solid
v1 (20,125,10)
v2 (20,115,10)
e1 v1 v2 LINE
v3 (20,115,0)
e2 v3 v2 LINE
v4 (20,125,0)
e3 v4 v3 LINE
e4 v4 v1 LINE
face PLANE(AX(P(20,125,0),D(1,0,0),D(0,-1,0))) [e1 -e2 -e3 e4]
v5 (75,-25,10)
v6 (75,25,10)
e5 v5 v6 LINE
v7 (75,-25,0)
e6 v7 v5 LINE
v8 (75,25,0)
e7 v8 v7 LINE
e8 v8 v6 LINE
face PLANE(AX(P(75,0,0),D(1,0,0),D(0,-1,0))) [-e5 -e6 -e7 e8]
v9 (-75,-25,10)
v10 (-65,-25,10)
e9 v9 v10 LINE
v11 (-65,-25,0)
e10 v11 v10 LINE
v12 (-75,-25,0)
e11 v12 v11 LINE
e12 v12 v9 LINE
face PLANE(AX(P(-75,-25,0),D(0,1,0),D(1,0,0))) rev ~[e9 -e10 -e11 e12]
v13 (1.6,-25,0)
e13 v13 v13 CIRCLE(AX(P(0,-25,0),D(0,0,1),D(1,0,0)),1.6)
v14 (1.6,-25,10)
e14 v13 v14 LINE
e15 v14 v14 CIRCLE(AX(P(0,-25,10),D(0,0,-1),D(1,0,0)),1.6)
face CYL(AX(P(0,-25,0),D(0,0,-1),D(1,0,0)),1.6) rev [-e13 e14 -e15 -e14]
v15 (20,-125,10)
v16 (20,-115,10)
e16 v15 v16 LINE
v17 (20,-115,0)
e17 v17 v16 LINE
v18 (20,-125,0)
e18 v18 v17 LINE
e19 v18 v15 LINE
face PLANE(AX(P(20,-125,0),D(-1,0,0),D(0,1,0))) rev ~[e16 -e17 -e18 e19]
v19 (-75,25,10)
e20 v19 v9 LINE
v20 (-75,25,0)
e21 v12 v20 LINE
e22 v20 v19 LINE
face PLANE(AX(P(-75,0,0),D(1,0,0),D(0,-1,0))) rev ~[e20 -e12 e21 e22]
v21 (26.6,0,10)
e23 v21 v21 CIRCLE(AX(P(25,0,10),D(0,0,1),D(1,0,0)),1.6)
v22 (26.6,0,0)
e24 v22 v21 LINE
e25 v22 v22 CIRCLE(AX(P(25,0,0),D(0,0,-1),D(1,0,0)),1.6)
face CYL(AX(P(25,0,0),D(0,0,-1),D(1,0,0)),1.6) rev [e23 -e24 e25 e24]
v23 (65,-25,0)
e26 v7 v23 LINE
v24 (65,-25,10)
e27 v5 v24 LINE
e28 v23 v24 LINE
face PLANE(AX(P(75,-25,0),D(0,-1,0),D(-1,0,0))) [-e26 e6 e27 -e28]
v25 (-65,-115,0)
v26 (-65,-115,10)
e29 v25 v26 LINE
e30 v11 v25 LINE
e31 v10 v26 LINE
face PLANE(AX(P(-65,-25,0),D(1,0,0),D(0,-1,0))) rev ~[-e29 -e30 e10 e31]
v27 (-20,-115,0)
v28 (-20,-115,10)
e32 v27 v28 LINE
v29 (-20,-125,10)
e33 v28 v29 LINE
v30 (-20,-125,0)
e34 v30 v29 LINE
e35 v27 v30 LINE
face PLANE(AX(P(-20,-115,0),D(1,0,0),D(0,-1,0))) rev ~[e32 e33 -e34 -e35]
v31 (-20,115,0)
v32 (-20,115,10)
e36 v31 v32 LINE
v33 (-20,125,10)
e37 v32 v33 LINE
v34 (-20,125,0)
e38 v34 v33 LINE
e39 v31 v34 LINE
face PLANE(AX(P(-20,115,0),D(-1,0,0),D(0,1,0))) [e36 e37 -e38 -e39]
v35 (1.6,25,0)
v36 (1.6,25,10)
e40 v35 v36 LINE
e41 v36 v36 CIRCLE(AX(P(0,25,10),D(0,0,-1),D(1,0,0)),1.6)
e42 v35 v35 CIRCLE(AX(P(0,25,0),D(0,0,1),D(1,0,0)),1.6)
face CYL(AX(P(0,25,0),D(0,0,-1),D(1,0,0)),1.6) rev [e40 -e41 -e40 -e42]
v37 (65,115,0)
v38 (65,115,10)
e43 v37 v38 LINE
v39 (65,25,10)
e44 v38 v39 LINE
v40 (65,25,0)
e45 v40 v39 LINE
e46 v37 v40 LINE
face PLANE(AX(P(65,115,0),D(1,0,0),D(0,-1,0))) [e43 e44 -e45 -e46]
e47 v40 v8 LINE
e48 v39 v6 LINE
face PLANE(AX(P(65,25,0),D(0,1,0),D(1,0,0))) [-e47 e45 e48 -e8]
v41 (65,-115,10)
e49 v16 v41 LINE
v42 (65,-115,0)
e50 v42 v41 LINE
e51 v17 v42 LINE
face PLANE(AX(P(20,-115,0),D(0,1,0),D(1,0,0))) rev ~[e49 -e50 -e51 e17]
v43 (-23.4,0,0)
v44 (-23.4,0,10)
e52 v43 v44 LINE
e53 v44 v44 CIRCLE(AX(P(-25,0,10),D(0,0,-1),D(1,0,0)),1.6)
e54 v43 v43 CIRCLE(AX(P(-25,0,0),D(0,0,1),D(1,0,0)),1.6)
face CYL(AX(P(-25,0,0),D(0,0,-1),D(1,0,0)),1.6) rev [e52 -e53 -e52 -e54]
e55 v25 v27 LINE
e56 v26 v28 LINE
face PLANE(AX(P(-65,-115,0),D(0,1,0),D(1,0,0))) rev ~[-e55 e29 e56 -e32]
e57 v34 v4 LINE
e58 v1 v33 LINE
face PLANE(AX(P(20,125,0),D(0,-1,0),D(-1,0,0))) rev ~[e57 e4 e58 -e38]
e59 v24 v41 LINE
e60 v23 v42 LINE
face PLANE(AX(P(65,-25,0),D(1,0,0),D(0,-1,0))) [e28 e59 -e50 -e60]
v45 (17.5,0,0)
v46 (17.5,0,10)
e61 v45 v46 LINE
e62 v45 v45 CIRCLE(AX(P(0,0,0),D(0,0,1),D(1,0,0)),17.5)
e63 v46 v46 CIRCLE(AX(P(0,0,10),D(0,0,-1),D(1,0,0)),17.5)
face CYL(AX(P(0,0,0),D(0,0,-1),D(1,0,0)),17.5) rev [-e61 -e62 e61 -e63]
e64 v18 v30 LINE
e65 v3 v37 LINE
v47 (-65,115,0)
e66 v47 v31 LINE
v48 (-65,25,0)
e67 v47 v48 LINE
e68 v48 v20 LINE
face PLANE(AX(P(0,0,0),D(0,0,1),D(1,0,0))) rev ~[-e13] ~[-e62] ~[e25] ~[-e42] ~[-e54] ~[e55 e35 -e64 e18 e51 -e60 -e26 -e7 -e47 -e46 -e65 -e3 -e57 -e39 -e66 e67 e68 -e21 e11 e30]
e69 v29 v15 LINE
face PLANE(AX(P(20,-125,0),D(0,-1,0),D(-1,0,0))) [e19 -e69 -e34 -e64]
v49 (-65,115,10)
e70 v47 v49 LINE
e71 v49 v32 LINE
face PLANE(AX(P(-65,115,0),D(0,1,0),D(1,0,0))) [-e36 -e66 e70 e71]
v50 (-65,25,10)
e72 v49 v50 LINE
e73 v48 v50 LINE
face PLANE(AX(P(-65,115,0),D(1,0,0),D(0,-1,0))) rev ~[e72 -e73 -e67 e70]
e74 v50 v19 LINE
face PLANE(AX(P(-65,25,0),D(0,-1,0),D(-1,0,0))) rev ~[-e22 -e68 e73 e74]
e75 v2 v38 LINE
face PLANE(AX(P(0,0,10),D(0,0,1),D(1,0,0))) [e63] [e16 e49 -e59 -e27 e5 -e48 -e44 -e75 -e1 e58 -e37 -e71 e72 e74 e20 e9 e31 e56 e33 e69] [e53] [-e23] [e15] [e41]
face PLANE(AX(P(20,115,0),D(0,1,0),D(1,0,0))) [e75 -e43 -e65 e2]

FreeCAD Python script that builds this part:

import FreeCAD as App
import Part
import Sketcher
Q = App.Units.Quantity

doc = App.newDocument("Part")
body = doc.addObject("PartDesign::Body", "Body")

# Sketch on XY plane
sketch1 = body.newObject("Sketcher::SketchObject", "Sketch")
sketch1.AttachmentSupport = (doc.getObject("XY_Plane"), [""])
sketch1.MapMode = "FlatFace"
sketch1.addGeometry([
    Part.LineSegment(App.Vector(75, -25, 0), App.Vector(75, 25, 0)),  # 0
    Part.LineSegment(App.Vector(75, 25, 0), App.Vector(65, 25, 0)),  # 1
    Part.LineSegment(App.Vector(65, 25, 0), App.Vector(65, 115, 0)),  # 2
    Part.LineSegment(App.Vector(65, 115, 0), App.Vector(20, 115, 0)),  # 3
    Part.LineSegment(App.Vector(20, 115, 0), App.Vector(20, 125, 0)),  # 4
    Part.LineSegment(App.Vector(20, 125, 0), App.Vector(-20, 125, 0)),  # 5
    Part.LineSegment(App.Vector(-20, 125, 0), App.Vector(-20, 115, 0)),  # 6
    Part.LineSegment(App.Vector(-20, 115, 0), App.Vector(-65, 115, 0)),  # 7
    Part.LineSegment(App.Vector(-65, 115, 0), App.Vector(-65, 25, 0)),  # 8
    Part.LineSegment(App.Vector(-65, 25, 0), App.Vector(-75, 25, 0)),  # 9
    Part.LineSegment(App.Vector(-75, 25, 0), App.Vector(-75, -25, 0)),  # 10
    Part.LineSegment(App.Vector(-75, -25, 0), App.Vector(-65, -25, 0)),  # 11
    Part.LineSegment(App.Vector(-65, -25, 0), App.Vector(-65, -115, 0)),  # 12
    Part.LineSegment(App.Vector(-65, -115, 0), App.Vector(-20, -115, 0)),  # 13
    Part.LineSegment(App.Vector(-20, -115, 0), App.Vector(-20, -125, 0)),  # 14
    Part.LineSegment(App.Vector(-20, -125, 0), App.Vector(20, -125, 0)),  # 15
    Part.LineSegment(App.Vector(20, -125, 0), App.Vector(20, -115, 0)),  # 16
    Part.LineSegment(App.Vector(20, -115, 0), App.Vector(65, -115, 0)),  # 17
    Part.LineSegment(App.Vector(65, -115, 0), App.Vector(65, -25, 0)),  # 18
    Part.LineSegment(App.Vector(65, -25, 0), App.Vector(75, -25, 0)),  # 19
    Part.Circle(App.Vector(25, 0, 0), App.Vector(0, 0, 1), 1.6),  # 20
    Part.Circle(App.Vector(0, -25, 0), App.Vector(0, 0, 1), 1.6),  # 21
    Part.Circle(App.Vector(0, 0, 0), App.Vector(0, 0, 1), 17.5),  # 22
    Part.Circle(App.Vector(0, 25, 0), App.Vector(0, 0, 1), 1.6),  # 23
    Part.Circle(App.Vector(-25, 0, 0), App.Vector(0, 0, 1), 1.6),  # 24
], False)
sketch1.addConstraint([
    Sketcher.Constraint("Coincident", 0, 2, 1, 1),
    Sketcher.Constraint("Coincident", 1, 2, 2, 1),
    Sketcher.Constraint("Coincident", 2, 2, 3, 1),
    Sketcher.Constraint("Coincident", 3, 2, 4, 1),
    Sketcher.Constraint("Coincident", 4, 2, 5, 1),
    Sketcher.Constraint("Coincident", 5, 2, 6, 1),
    Sketcher.Constraint("Coincident", 6, 2, 7, 1),
    Sketcher.Constraint("Coincident", 7, 2, 8, 1),
    Sketcher.Constraint("Coincident", 8, 2, 9, 1),
    Sketcher.Constraint("Coincident", 9, 2, 10, 1),
    Sketcher.Constraint("Coincident", 10, 2, 11, 1),
    Sketcher.Constraint("Coincident", 11, 2, 12, 1),
    Sketcher.Constraint("Coincident", 12, 2, 13, 1),
    Sketcher.Constraint("Coincident", 13, 2, 14, 1),
    Sketcher.Constraint("Coincident", 14, 2, 15, 1),
    Sketcher.Constraint("Coincident", 15, 2, 16, 1),
    Sketcher.Constraint("Coincident", 16, 2, 17, 1),
    Sketcher.Constraint("Coincident", 17, 2, 18, 1),
    Sketcher.Constraint("Coincident", 18, 2, 19, 1),
    Sketcher.Constraint("Coincident", 19, 2, 0, 1),
    Sketcher.Constraint("Vertical", 0),
    Sketcher.Constraint("Horizontal", 1),
    Sketcher.Constraint("Vertical", 2),
    Sketcher.Constraint("Horizontal", 3),
    Sketcher.Constraint("Vertical", 4),
    Sketcher.Constraint("Horizontal", 5),
    Sketcher.Constraint("Vertical", 6),
    Sketcher.Constraint("Horizontal", 7),
    Sketcher.Constraint("Vertical", 8),
    Sketcher.Constraint("Horizontal", 9),
    Sketcher.Constraint("Vertical", 10),
    Sketcher.Constraint("Horizontal", 11),
    Sketcher.Constraint("Vertical", 12),
    Sketcher.Constraint("Horizontal", 13),
    Sketcher.Constraint("Vertical", 14),
    Sketcher.Constraint("Horizontal", 15),
    Sketcher.Constraint("Vertical", 16),
    Sketcher.Constraint("Horizontal", 17),
    Sketcher.Constraint("Vertical", 18),
    Sketcher.Constraint("Horizontal", 19),
    Sketcher.Constraint("Coincident", 22, 3, -1, 1),
    Sketcher.Constraint("Equal", 20, 21),
    Sketcher.Constraint("Equal", 21, 23),
    Sketcher.Constraint("Equal", 23, 24),
    Sketcher.Constraint("Symmetric", 21, 3, 23, 3, -1, 1),
    Sketcher.Constraint("Symmetric", 20, 3, 24, 3, -1, 1),
    Sketcher.Constraint("Symmetric", 0, 2, 10, 2, -1, 1),
    Sketcher.Constraint("Symmetric", 2, 2, 12, 2, -1, 1),
    Sketcher.Constraint("Symmetric", 4, 2, 14, 2, -1, 1),
    Sketcher.Constraint("Symmetric", 6, 2, 16, 2, -1, 1),
    Sketcher.Constraint("Symmetric", 8, 2, 18, 2, -1, 1),
    Sketcher.Constraint("Symmetric", 3, 2, 6, 2, -2),
    Sketcher.Constraint("Symmetric", 1, 2, 8, 2, -2),
    Sketcher.Constraint("PointOnObject", 20, 3, -1),
    Sketcher.Constraint("PointOnObject", 21, 3, -2),
    Sketcher.Constraint("Horizontal", 23, 3, 0, 2),
    Sketcher.Constraint("Equal", 19, 4),
    Sketcher.Constraint("Diameter", 22, Q("35 mm")),
    Sketcher.Constraint("Diameter", 20, Q("3.2 mm")),
    Sketcher.Constraint("DistanceX", 1, 2, 1, 1, Q("10 mm")),
    Sketcher.Constraint("DistanceX", 5, 2, 5, 1, Q("40 mm")),
    Sketcher.Constraint("DistanceY", 0, 1, 0, 2, Q("50 mm")),
    Sketcher.Constraint("DistanceX", 24, 3, 20, 3, Q("50 mm")),
    Sketcher.Constraint("DistanceX", 20, 3, 0, 2, Q("50 mm")),
    Sketcher.Constraint("DistanceY", 2, 1, 2, 2, Q("90 mm")),
])
pad1 = body.newObject("PartDesign::Pad", "Pad")
pad1.Profile = sketch1
pad1.Length = 10

doc.recompute()
